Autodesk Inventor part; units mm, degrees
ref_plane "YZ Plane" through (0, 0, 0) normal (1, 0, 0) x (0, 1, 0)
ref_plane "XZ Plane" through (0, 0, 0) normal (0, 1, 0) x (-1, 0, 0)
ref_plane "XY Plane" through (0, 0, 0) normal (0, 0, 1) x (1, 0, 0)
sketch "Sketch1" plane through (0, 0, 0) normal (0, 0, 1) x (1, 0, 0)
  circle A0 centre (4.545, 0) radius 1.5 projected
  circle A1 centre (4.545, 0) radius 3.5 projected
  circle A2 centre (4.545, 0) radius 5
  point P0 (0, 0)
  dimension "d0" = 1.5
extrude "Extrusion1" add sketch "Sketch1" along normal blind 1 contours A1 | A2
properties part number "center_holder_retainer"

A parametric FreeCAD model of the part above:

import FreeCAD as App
import Part
import Sketcher
from FreeCAD import Vector

doc = App.newDocument("Part")
params = doc.addObject("Spreadsheet::Sheet", "Params")
for row, (alias, value) in enumerate([
    ("sketch1_diameter", "3 mm"),
    ("sketch1_diameter2", "10 mm"),
    ("pad1_length", "1 mm"),
], start=1):
    params.set(f"A{row}", alias)
    params.set(f"B{row}", "=" + value)
    params.setAlias(f"B{row}", alias)

body = doc.addObject("PartDesign::Body", "Body")

# Sketch on XY plane
sketch1 = body.newObject("Sketcher::SketchObject", "Sketch")
sketch1.AttachmentSupport = (doc.getObject("XY_Plane"), [""])
sketch1.MapMode = "FlatFace"
sketch1.addGeometry([
    Part.Circle(Vector(4.5, 0, 0), Vector(0, 0, 1), 5),
    Part.Circle(Vector(4.5, 0, 0), Vector(0, 0, 1), 1.5),
], False)
sketch1.addConstraint([
    Sketcher.Constraint("Coincident", 1, 3, 0, 3),
    Sketcher.Constraint("PointOnObject", 0, 3, -1),
    Sketcher.Constraint("Diameter", 1, 3.0),
    Sketcher.Constraint("Diameter", 0, 10.0),
    Sketcher.Constraint("DistanceX", -1, 1, 0, 3, 4.545),
])
sketch1.setExpression("Constraints[2]", "Params.sketch1_diameter")
sketch1.setExpression("Constraints[3]", "Params.sketch1_diameter2")
pad1 = body.newObject("PartDesign::Pad", "Pad")
pad1.Profile = sketch1
pad1.setExpression("Length", "Params.pad1_length")

doc.recompute()
